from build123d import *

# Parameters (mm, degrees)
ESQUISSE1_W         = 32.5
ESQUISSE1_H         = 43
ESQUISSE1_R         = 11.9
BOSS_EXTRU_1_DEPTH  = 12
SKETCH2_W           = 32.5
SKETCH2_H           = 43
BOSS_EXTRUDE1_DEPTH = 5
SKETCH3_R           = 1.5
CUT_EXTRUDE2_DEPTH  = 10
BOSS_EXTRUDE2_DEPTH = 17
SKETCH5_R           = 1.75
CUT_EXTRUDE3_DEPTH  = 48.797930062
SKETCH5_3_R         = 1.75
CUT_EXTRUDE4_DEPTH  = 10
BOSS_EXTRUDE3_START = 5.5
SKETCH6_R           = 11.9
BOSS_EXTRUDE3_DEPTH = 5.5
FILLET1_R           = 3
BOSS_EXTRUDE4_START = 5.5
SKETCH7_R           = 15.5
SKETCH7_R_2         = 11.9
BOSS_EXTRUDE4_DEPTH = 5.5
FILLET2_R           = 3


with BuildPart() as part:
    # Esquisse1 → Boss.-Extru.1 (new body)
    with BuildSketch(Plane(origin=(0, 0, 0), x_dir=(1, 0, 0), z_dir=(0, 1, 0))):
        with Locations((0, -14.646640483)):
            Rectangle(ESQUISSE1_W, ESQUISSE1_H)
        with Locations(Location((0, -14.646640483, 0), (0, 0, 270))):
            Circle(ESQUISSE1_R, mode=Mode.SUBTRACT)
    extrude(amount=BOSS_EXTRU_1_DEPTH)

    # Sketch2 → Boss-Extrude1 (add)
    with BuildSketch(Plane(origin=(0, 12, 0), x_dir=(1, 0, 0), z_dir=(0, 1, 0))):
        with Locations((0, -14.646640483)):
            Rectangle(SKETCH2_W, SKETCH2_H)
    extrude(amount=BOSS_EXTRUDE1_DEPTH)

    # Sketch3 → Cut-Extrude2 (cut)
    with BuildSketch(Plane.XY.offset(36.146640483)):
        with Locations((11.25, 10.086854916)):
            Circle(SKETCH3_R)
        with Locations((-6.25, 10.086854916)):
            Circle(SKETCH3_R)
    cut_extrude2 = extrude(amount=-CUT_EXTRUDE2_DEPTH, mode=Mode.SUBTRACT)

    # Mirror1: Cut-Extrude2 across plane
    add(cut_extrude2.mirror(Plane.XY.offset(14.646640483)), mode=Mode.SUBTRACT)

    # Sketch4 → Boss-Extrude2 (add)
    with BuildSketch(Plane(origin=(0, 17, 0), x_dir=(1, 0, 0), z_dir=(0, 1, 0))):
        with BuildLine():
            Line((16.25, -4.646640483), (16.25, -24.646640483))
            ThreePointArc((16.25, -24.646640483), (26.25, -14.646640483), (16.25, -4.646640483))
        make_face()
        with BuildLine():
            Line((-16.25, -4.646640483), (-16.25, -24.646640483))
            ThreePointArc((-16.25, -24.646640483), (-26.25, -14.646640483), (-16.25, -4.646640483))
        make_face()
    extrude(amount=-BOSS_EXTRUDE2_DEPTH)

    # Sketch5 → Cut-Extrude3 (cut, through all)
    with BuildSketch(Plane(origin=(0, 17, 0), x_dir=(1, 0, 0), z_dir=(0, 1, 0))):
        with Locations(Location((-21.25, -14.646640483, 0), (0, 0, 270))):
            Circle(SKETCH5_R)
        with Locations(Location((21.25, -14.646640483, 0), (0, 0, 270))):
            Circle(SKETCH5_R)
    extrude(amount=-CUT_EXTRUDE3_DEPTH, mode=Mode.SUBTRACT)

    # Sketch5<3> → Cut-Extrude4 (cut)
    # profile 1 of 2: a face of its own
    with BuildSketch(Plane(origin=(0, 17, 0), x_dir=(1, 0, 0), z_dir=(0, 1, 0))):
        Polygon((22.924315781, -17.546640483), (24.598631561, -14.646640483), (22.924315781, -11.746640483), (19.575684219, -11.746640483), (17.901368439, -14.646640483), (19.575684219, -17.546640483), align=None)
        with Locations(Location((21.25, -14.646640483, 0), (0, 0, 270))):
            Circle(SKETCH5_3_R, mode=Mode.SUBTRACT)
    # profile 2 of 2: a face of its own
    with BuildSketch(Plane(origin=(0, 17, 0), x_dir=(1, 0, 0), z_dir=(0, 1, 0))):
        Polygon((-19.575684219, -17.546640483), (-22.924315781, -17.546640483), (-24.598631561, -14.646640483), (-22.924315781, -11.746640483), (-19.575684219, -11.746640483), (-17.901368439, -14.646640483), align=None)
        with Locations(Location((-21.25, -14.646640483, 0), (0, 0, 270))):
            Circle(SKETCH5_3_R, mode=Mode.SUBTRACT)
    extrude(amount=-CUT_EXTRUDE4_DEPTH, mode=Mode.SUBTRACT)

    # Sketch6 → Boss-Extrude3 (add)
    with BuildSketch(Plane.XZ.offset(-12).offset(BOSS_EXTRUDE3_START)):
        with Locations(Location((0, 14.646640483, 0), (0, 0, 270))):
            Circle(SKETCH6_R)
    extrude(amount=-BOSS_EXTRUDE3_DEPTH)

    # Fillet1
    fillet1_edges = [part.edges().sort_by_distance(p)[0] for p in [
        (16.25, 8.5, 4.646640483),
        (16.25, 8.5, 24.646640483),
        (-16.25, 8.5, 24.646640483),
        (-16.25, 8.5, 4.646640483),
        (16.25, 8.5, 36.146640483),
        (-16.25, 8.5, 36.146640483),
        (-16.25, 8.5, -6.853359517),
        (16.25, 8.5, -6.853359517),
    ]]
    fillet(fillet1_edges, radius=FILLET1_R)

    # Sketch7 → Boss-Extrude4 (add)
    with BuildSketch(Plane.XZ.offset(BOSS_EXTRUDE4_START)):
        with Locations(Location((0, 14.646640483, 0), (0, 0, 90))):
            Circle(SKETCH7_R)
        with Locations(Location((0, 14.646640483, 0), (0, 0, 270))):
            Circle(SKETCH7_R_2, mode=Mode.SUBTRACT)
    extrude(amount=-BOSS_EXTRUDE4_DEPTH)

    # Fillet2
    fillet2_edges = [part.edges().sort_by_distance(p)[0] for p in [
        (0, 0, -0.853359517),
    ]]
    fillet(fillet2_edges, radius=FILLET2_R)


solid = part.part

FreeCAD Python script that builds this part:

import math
import FreeCAD as App
import Part
import Sketcher
Q = App.Units.Quantity


def edges_at(feature, points):
    """Names of the edges that pass closest to the given points."""
    edges = feature.Shape.Edges
    near = lambda p: min(range(len(edges)), key=lambda i: edges[i].distToShape(Part.Vertex(*p))[0])
    return sorted({f"Edge{near(p) + 1}" for p in points})

doc = App.newDocument("Part")
body = doc.addObject("PartDesign::Body", "Body")

# Sketch on XZ plane
sketch1 = body.newObject("Sketcher::SketchObject", "Sketch")
sketch1.AttachmentSupport = (doc.getObject("XZ_Plane"), [""])
sketch1.MapMode = "FlatFace"
sketch1.addGeometry([
    Part.LineSegment(App.Vector(-16, -7, 0), App.Vector(-16, 36, 0)),  # 0
    Part.LineSegment(App.Vector(-16, 36, 0), App.Vector(16, 36, 0)),  # 1
    Part.LineSegment(App.Vector(16, 36, 0), App.Vector(16, -7, 0)),  # 2
    Part.LineSegment(App.Vector(16, -7, 0), App.Vector(-16, -7, 0)),  # 3
    Part.Circle(App.Vector(0, 15, 0), App.Vector(0, 0, 1), 12),  # 4
], False)
sketch1.addConstraint([
    Sketcher.Constraint("Coincident", 0, 2, 1, 1),
    Sketcher.Constraint("Coincident", 1, 2, 2, 1),
    Sketcher.Constraint("Coincident", 2, 2, 3, 1),
    Sketcher.Constraint("Coincident", 3, 2, 0, 1),
    Sketcher.Constraint("Vertical", 0),
    Sketcher.Constraint("Horizontal", 1),
    Sketcher.Constraint("Vertical", 2),
    Sketcher.Constraint("Horizontal", 3),
    Sketcher.Constraint("PointOnObject", 4, 3, -2),
    Sketcher.Constraint("Diameter", 4, 23.8),
    Sketcher.Constraint("DistanceY", 0, 1, 0, 2, 43.0),
    Sketcher.Constraint("DistanceX", 1, 1, 1, 2, 32.5),
    Sketcher.Constraint("DistanceY", 4, 3, 0, 2, 21.5),
    Sketcher.Constraint("DistanceX", 0, 2, -1, 1, 16.25),
    Sketcher.Constraint("DistanceY", -1, 1, 4, 3, 14.64664),
])
pad1 = body.newObject("PartDesign::Pad", "Pad")
pad1.Profile = sketch1
pad1.Length = 12
pad1.Reversed = True

# Sketch on XZ plane
sketch2 = body.newObject("Sketcher::SketchObject", "Sketch001")
sketch2.AttachmentSupport = (doc.getObject("XZ_Plane"), [""])
sketch2.MapMode = "FlatFace"
sketch2.AttachmentOffset = App.Placement(App.Vector(0, 0, -12), App.Rotation())
sketch2.addGeometry([
    Part.LineSegment(App.Vector(-16, -7, 0), App.Vector(-16, 36, 0)),
    Part.LineSegment(App.Vector(-16, 36, 0), App.Vector(16, 36, 0)),
    Part.LineSegment(App.Vector(16, 36, 0), App.Vector(16, -7, 0)),
    Part.LineSegment(App.Vector(16, -7, 0), App.Vector(-16, -7, 0)),
], False)
sketch2.addConstraint([
    Sketcher.Constraint("Coincident", 0, 2, 1, 1),
    Sketcher.Constraint("Coincident", 1, 2, 2, 1),
    Sketcher.Constraint("Coincident", 2, 2, 3, 1),
    Sketcher.Constraint("Coincident", 3, 2, 0, 1),
    Sketcher.Constraint("Vertical", 0),
    Sketcher.Constraint("Horizontal", 1),
    Sketcher.Constraint("Vertical", 2),
    Sketcher.Constraint("Horizontal", 3),
    Sketcher.Constraint("DistanceY", 0, 1, 0, 2, 43.0),
    Sketcher.Constraint("DistanceX", 1, 1, 1, 2, 32.5),
    Sketcher.Constraint("DistanceX", 0, 2, -1, 1, 16.25),
    Sketcher.Constraint("DistanceY", -1, 1, 0, 2, 36.14664),
])
pad2 = body.newObject("PartDesign::Pad", "Pad001")
pad2.Profile = sketch2
pad2.Length = 5
pad2.Reversed = True

# Sketch on XY plane
sketch3 = body.newObject("Sketcher::SketchObject", "Sketch002")
sketch3.AttachmentSupport = (doc.getObject("XY_Plane"), [""])
sketch3.MapMode = "FlatFace"
sketch3.AttachmentOffset = App.Placement(App.Vector(0, 0, 36.14664), App.Rotation())
sketch3.addGeometry([
    Part.Circle(App.Vector(11.2, 10.1, 0), App.Vector(0, 0, 1), 1.5),
    Part.Circle(App.Vector(-6.2, 10.1, 0), App.Vector(0, 0, 1), 1.5),
], False)
sketch3.addConstraint([
    Sketcher.Constraint("Equal", 0, 1),
    Sketcher.Constraint("Horizontal", 0, 3, 1, 3),
    Sketcher.Constraint("Diameter", 0, 3.0),
    Sketcher.Constraint("DistanceX", 1, 3, 0, 3, 17.5),
    Sketcher.Constraint("DistanceX", -1, 1, 0, 3, 11.25),
    Sketcher.Constraint("DistanceY", -1, 1, 0, 3, 10.086855),
])
pocket1 = body.newObject("PartDesign::Pocket", "Pocket")
pocket1.Profile = sketch3
pocket1.Length = 10
doc.recompute()

datumplane = body.newObject("PartDesign::Plane", "DatumPlane")
datumplane.AttachmentSupport = (doc.getObject("XY_Plane"), [""])
datumplane.MapMode = "FlatFace"
datumplane.AttachmentOffset = App.Placement(App.Vector(0, 0, 14.64664), App.Rotation())
mirrored = body.newObject("PartDesign::Mirrored", "Mirrored")
mirrored.Originals = [pocket1]
mirrored.MirrorPlane = (datumplane, [""])
body.Tip = mirrored

# Sketch on XZ plane
sketch4 = body.newObject("Sketcher::SketchObject", "Sketch003")
sketch4.AttachmentSupport = (doc.getObject("XZ_Plane"), [""])
sketch4.MapMode = "FlatFace"
sketch4.AttachmentOffset = App.Placement(App.Vector(0, 0, -17), App.Rotation())
sketch4.addGeometry([
    Part.LineSegment(App.Vector(16, 5, 0), App.Vector(16, 25, 0)),
    Part.ArcOfCircle(Part.Circle(App.Vector(16, 15, 0), App.Vector(0, 0, 1), 10), math.radians(-90), math.radians(90)),
    Part.LineSegment(App.Vector(-16, 25, 0), App.Vector(-16, 5, 0)),
    Part.ArcOfCircle(Part.Circle(App.Vector(-16, 15, 0), App.Vector(0, 0, 1), 10), math.radians(90), math.radians(270)),
], False)
sketch4.addConstraint([
    Sketcher.Constraint("Coincident", 0, 1, 1, 1),
    Sketcher.Constraint("Coincident", 1, 2, 0, 2),
    Sketcher.Constraint("Coincident", 2, 1, 3, 1),
    Sketcher.Constraint("Coincident", 3, 2, 2, 2),
    Sketcher.Constraint("Vertical", 0),
    Sketcher.Constraint("Vertical", 2),
    Sketcher.Constraint("Equal", 1, 3),
    Sketcher.Constraint("Symmetric", 1, 3, 3, 3, -2),
    Sketcher.Constraint("Vertical", 1, 3, 0, 1),
    Sketcher.Constraint("Vertical", 3, 3, 2, 1),
    Sketcher.Constraint("Radius", 1, 10.0),
    Sketcher.Constraint("DistanceX", 3, 3, 1, 3, 32.5),
    Sketcher.Constraint("DistanceY", -1, 1, 1, 3, 14.64664),
])
pad3 = body.newObject("PartDesign::Pad", "Pad002")
pad3.Profile = sketch4
pad3.Length = 17

# Sketch on XZ plane
sketch5 = body.newObject("Sketcher::SketchObject", "Sketch004")
sketch5.AttachmentSupport = (doc.getObject("XZ_Plane"), [""])
sketch5.MapMode = "FlatFace"
sketch5.AttachmentOffset = App.Placement(App.Vector(0, 0, -17), App.Rotation())
sketch5.addGeometry([
    Part.Circle(App.Vector(-21.2, 14.6, 0), App.Vector(0, 0, 1), 1.8),
    Part.Circle(App.Vector(21.2, 14.6, 0), App.Vector(0, 0, 1), 1.8),
], False)
sketch5.addConstraint([
    Sketcher.Constraint("Equal", 0, 1),
    Sketcher.Constraint("Symmetric", 0, 3, 1, 3, -2),
    Sketcher.Constraint("Diameter", 0, 3.5),
    Sketcher.Constraint("DistanceX", 0, 3, 1, 3, 42.5),
    Sketcher.Constraint("DistanceY", -1, 1, 0, 3, 14.64664),
])
pocket2 = body.newObject("PartDesign::Pocket", "Pocket001")
pocket2.Profile = sketch5
pocket2.Type = "ThroughAll"
pocket2.Reversed = True

# Sketch on XZ plane
sketch6 = body.newObject("Sketcher::SketchObject", "Sketch005")
sketch6.AttachmentSupport = (doc.getObject("XZ_Plane"), [""])
sketch6.MapMode = "FlatFace"
sketch6.AttachmentOffset = App.Placement(App.Vector(0, 0, -17), App.Rotation())
sketch6.addGeometry([
    Part.LineSegment(App.Vector(22.9, 17.5, 0), App.Vector(24.6, 14.6, 0)),  # 0
    Part.LineSegment(App.Vector(24.6, 14.6, 0), App.Vector(22.9, 11.7, 0)),  # 1
    Part.LineSegment(App.Vector(22.9, 11.7, 0), App.Vector(19.6, 11.7, 0)),  # 2
    Part.LineSegment(App.Vector(19.6, 11.7, 0), App.Vector(17.9, 14.6, 0)),  # 3
    Part.LineSegment(App.Vector(17.9, 14.6, 0), App.Vector(19.6, 17.5, 0)),  # 4
    Part.LineSegment(App.Vector(19.6, 17.5, 0), App.Vector(22.9, 17.5, 0)),  # 5
    Part.Circle(App.Vector(21.2, 14.6, 0), App.Vector(0, 0, 1), 1.8),  # 6
    Part.LineSegment(App.Vector(-22.9, 17.5, 0), App.Vector(-19.6, 17.5, 0)),  # 7
    Part.LineSegment(App.Vector(-19.6, 17.5, 0), App.Vector(-17.9, 14.6, 0)),  # 8
    Part.LineSegment(App.Vector(-17.9, 14.6, 0), App.Vector(-19.6, 11.7, 0)),  # 9
    Part.LineSegment(App.Vector(-19.6, 11.7, 0), App.Vector(-22.9, 11.7, 0)),  # 10
    Part.LineSegment(App.Vector(-22.9, 11.7, 0), App.Vector(-24.6, 14.6, 0)),  # 11
    Part.LineSegment(App.Vector(-24.6, 14.6, 0), App.Vector(-22.9, 17.5, 0)),  # 12
    Part.Circle(App.Vector(-21.2, 14.6, 0), App.Vector(0, 0, 1), 1.8),  # 13
], False)
sketch6.addConstraint([
    Sketcher.Constraint("Coincident", 0, 2, 1, 1),
    Sketcher.Constraint("Coincident", 1, 2, 2, 1),
    Sketcher.Constraint("Coincident", 2, 2, 3, 1),
    Sketcher.Constraint("Coincident", 3, 2, 4, 1),
    Sketcher.Constraint("Coincident", 4, 2, 5, 1),
    Sketcher.Constraint("Coincident", 5, 2, 0, 1),
    Sketcher.Constraint("Coincident", 7, 2, 8, 1),
    Sketcher.Constraint("Coincident", 8, 2, 9, 1),
    Sketcher.Constraint("Coincident", 9, 2, 10, 1),
    Sketcher.Constraint("Coincident", 10, 2, 11, 1),
    Sketcher.Constraint("Coincident", 11, 2, 12, 1),
    Sketcher.Constraint("Coincident", 12, 2, 7, 1),
    Sketcher.Constraint("Horizontal", 2),
    Sketcher.Constraint("Horizontal", 5),
    Sketcher.Constraint("Horizontal", 7),
    Sketcher.Constraint("Horizontal", 10),
    Sketcher.Constraint("Equal", 6, 13),
    Sketcher.Constraint("Symmetric", 6, 3, 13, 3, -2),
    Sketcher.Constraint("Symmetric", 4, 2, 7, 2, -2),
    Sketcher.Constraint("Symmetric", 3, 2, 8, 2, -2),
    Sketcher.Constraint("Symmetric", 2, 2, 9, 2, -2),
    Sketcher.Constraint("Symmetric", 0, 2, 11, 2, -2),
    Sketcher.Constraint("Parallel", 0, 3),
    Sketcher.Constraint("Parallel", 1, 4),
    Sketcher.Constraint("Parallel", 3, 8),
    Sketcher.Constraint("Parallel", 8, 11),
    Sketcher.Constraint("Parallel", 9, 12),
    Sketcher.Constraint("Horizontal", 13, 3, 0, 2),
    Sketcher.Constraint("Horizontal", 0, 2, 3, 2),
    Sketcher.Constraint("Vertical", 2, 2, 4, 2),
    Sketcher.Constraint("Diameter", 6, 3.5),
    Sketcher.Constraint("Angle", 0, Q("-60 deg")),
    Sketcher.Constraint("DistanceX", 13, 3, 6, 3, 42.5),
    Sketcher.Constraint("DistanceY", 1, 2, 0, 2, 2.9),
    Sketcher.Constraint("DistanceX", 2, 2, 2, 1, 3.348632),
    Sketcher.Constraint("DistanceY", -1, 1, 6, 3, 14.64664),
    Sketcher.Constraint("DistanceX", -1, 1, 0, 2, 24.598632),
])
pocket3 = body.newObject("PartDesign::Pocket", "Pocket002")
pocket3.Profile = sketch6
pocket3.Length = 10
pocket3.Reversed = True

# Sketch on XZ plane
sketch7 = body.newObject("Sketcher::SketchObject", "Sketch006")
sketch7.AttachmentSupport = (doc.getObject("XZ_Plane"), [""])
sketch7.MapMode = "FlatFace"
sketch7.AttachmentOffset = App.Placement(App.Vector(0, 0, -6.5), App.Rotation())
sketch7.addGeometry(Part.Circle(App.Vector(0, 15, 0), App.Vector(0, 0, 1), 12), False)
sketch7.addConstraint([
    Sketcher.Constraint("PointOnObject", 0, 3, -2),
    Sketcher.Constraint("Diameter", 0, 23.8),
    Sketcher.Constraint("DistanceY", -1, 1, 0, 3, 14.64664),
])
pad4 = body.newObject("PartDesign::Pad", "Pad003")
pad4.Profile = sketch7
pad4.Length = 5.5
pad4.Reversed = True
doc.recompute()

fillet = body.newObject("PartDesign::Fillet", "Fillet")
fillet.Base = (pad4, edges_at(pad4, [
    (16.25, 8.5, 4.647),
    (16.25, 8.5, 24.647),
    (-16.25, 8.5, 24.647),
    (-16.25, 8.5, 4.647),
    (16.25, 8.5, 36.147),
    (-16.25, 8.5, 36.147),
    (-16.25, 8.5, -6.853),
    (16.25, 8.5, -6.853),
]))
fillet.Radius = 3

# Sketch on XZ plane
sketch8 = body.newObject("Sketcher::SketchObject", "Sketch007")
sketch8.AttachmentSupport = (doc.getObject("XZ_Plane"), [""])
sketch8.MapMode = "FlatFace"
sketch8.AttachmentOffset = App.Placement(App.Vector(0, 0, 5.5), App.Rotation())
sketch8.addGeometry([
    Part.Circle(App.Vector(0, 15, 0), App.Vector(0, 0, 1), 16),
    Part.Circle(App.Vector(0, 15, 0), App.Vector(0, 0, 1), 12),
], False)
sketch8.addConstraint([
    Sketcher.Constraint("Coincident", 1, 3, 0, 3),
    Sketcher.Constraint("PointOnObject", 0, 3, -2),
    Sketcher.Constraint("Diameter", 0, 31.0),
    Sketcher.Constraint("Diameter", 1, 23.8),
    Sketcher.Constraint("DistanceY", -1, 1, 0, 3, 14.64664),
])
pad5 = body.newObject("PartDesign::Pad", "Pad004")
pad5.Profile = sketch8
pad5.Length = 5.5
pad5.Reversed = True
doc.recompute()

fillet2 = body.newObject("PartDesign::Fillet", "Fillet001")
fillet2.Base = (pad5, edges_at(pad5, [(0, 0, -0.853)]))
fillet2.Radius = 3

doc.recompute()
